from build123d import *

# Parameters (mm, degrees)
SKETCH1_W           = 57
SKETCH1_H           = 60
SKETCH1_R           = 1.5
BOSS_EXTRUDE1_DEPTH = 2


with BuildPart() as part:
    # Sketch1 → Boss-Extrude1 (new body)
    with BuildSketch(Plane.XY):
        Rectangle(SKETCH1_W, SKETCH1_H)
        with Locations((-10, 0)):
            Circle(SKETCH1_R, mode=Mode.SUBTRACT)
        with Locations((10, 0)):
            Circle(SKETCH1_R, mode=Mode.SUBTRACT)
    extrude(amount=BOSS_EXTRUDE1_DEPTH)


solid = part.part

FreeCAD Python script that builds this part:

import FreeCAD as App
import Part
import Sketcher

V = App.Vector

doc = App.newDocument("Part")
body = doc.addObject("PartDesign::Body", "Body")

sketch1 = body.newObject("Sketcher::SketchObject", "Sketch")
sketch1.AttachmentSupport = (doc.getObject("XY_Plane"), [""])
sketch1.MapMode = "FlatFace"
sketch1.addGeometry([
    Part.LineSegment(V(-28.5, 30, 0), V(-28.5, -30, 0)),
    Part.LineSegment(V(-28.5, -30, 0), V(28.5, -30, 0)),
    Part.LineSegment(V(28.5, -30, 0), V(28.5, 30, 0)),
    Part.LineSegment(V(28.5, 30, 0), V(-28.5, 30, 0)),
    Part.Circle(V(-10, 0, 0), V(0, 0, 1), 1.5),
    Part.Circle(V(10, 0, 0), V(0, 0, 1), 1.5),
], False)
sketch1.addConstraint([
    Sketcher.Constraint("Coincident", 0, 2, 1, 1),
    Sketcher.Constraint("Coincident", 1, 2, 2, 1),
    Sketcher.Constraint("Coincident", 2, 2, 3, 1),
    Sketcher.Constraint("Coincident", 3, 2, 0, 1),
    Sketcher.Constraint("Vertical", 0),
    Sketcher.Constraint("Horizontal", 1),
    Sketcher.Constraint("Vertical", 2),
    Sketcher.Constraint("Horizontal", 3),
    Sketcher.Constraint("Equal", 4, 5),
    Sketcher.Constraint("Symmetric", 4, 3, 5, 3, -1, 1),
    Sketcher.Constraint("Symmetric", 0, 2, 2, 2, -1, 1),
    Sketcher.Constraint("PointOnObject", 4, 3, -1),
    Sketcher.Constraint("Diameter", 4, 3.0),
    Sketcher.Constraint("DistanceX", 1, 1, 1, 2, 57.0),
    Sketcher.Constraint("DistanceY", 0, 2, 0, 1, 60.0),
    Sketcher.Constraint("DistanceX", 4, 3, -1, 1, 10.0),
])
pad1 = body.newObject("PartDesign::Pad", "Pad")
pad1.Profile = sketch1
pad1.Length = 2

doc.recompute()
